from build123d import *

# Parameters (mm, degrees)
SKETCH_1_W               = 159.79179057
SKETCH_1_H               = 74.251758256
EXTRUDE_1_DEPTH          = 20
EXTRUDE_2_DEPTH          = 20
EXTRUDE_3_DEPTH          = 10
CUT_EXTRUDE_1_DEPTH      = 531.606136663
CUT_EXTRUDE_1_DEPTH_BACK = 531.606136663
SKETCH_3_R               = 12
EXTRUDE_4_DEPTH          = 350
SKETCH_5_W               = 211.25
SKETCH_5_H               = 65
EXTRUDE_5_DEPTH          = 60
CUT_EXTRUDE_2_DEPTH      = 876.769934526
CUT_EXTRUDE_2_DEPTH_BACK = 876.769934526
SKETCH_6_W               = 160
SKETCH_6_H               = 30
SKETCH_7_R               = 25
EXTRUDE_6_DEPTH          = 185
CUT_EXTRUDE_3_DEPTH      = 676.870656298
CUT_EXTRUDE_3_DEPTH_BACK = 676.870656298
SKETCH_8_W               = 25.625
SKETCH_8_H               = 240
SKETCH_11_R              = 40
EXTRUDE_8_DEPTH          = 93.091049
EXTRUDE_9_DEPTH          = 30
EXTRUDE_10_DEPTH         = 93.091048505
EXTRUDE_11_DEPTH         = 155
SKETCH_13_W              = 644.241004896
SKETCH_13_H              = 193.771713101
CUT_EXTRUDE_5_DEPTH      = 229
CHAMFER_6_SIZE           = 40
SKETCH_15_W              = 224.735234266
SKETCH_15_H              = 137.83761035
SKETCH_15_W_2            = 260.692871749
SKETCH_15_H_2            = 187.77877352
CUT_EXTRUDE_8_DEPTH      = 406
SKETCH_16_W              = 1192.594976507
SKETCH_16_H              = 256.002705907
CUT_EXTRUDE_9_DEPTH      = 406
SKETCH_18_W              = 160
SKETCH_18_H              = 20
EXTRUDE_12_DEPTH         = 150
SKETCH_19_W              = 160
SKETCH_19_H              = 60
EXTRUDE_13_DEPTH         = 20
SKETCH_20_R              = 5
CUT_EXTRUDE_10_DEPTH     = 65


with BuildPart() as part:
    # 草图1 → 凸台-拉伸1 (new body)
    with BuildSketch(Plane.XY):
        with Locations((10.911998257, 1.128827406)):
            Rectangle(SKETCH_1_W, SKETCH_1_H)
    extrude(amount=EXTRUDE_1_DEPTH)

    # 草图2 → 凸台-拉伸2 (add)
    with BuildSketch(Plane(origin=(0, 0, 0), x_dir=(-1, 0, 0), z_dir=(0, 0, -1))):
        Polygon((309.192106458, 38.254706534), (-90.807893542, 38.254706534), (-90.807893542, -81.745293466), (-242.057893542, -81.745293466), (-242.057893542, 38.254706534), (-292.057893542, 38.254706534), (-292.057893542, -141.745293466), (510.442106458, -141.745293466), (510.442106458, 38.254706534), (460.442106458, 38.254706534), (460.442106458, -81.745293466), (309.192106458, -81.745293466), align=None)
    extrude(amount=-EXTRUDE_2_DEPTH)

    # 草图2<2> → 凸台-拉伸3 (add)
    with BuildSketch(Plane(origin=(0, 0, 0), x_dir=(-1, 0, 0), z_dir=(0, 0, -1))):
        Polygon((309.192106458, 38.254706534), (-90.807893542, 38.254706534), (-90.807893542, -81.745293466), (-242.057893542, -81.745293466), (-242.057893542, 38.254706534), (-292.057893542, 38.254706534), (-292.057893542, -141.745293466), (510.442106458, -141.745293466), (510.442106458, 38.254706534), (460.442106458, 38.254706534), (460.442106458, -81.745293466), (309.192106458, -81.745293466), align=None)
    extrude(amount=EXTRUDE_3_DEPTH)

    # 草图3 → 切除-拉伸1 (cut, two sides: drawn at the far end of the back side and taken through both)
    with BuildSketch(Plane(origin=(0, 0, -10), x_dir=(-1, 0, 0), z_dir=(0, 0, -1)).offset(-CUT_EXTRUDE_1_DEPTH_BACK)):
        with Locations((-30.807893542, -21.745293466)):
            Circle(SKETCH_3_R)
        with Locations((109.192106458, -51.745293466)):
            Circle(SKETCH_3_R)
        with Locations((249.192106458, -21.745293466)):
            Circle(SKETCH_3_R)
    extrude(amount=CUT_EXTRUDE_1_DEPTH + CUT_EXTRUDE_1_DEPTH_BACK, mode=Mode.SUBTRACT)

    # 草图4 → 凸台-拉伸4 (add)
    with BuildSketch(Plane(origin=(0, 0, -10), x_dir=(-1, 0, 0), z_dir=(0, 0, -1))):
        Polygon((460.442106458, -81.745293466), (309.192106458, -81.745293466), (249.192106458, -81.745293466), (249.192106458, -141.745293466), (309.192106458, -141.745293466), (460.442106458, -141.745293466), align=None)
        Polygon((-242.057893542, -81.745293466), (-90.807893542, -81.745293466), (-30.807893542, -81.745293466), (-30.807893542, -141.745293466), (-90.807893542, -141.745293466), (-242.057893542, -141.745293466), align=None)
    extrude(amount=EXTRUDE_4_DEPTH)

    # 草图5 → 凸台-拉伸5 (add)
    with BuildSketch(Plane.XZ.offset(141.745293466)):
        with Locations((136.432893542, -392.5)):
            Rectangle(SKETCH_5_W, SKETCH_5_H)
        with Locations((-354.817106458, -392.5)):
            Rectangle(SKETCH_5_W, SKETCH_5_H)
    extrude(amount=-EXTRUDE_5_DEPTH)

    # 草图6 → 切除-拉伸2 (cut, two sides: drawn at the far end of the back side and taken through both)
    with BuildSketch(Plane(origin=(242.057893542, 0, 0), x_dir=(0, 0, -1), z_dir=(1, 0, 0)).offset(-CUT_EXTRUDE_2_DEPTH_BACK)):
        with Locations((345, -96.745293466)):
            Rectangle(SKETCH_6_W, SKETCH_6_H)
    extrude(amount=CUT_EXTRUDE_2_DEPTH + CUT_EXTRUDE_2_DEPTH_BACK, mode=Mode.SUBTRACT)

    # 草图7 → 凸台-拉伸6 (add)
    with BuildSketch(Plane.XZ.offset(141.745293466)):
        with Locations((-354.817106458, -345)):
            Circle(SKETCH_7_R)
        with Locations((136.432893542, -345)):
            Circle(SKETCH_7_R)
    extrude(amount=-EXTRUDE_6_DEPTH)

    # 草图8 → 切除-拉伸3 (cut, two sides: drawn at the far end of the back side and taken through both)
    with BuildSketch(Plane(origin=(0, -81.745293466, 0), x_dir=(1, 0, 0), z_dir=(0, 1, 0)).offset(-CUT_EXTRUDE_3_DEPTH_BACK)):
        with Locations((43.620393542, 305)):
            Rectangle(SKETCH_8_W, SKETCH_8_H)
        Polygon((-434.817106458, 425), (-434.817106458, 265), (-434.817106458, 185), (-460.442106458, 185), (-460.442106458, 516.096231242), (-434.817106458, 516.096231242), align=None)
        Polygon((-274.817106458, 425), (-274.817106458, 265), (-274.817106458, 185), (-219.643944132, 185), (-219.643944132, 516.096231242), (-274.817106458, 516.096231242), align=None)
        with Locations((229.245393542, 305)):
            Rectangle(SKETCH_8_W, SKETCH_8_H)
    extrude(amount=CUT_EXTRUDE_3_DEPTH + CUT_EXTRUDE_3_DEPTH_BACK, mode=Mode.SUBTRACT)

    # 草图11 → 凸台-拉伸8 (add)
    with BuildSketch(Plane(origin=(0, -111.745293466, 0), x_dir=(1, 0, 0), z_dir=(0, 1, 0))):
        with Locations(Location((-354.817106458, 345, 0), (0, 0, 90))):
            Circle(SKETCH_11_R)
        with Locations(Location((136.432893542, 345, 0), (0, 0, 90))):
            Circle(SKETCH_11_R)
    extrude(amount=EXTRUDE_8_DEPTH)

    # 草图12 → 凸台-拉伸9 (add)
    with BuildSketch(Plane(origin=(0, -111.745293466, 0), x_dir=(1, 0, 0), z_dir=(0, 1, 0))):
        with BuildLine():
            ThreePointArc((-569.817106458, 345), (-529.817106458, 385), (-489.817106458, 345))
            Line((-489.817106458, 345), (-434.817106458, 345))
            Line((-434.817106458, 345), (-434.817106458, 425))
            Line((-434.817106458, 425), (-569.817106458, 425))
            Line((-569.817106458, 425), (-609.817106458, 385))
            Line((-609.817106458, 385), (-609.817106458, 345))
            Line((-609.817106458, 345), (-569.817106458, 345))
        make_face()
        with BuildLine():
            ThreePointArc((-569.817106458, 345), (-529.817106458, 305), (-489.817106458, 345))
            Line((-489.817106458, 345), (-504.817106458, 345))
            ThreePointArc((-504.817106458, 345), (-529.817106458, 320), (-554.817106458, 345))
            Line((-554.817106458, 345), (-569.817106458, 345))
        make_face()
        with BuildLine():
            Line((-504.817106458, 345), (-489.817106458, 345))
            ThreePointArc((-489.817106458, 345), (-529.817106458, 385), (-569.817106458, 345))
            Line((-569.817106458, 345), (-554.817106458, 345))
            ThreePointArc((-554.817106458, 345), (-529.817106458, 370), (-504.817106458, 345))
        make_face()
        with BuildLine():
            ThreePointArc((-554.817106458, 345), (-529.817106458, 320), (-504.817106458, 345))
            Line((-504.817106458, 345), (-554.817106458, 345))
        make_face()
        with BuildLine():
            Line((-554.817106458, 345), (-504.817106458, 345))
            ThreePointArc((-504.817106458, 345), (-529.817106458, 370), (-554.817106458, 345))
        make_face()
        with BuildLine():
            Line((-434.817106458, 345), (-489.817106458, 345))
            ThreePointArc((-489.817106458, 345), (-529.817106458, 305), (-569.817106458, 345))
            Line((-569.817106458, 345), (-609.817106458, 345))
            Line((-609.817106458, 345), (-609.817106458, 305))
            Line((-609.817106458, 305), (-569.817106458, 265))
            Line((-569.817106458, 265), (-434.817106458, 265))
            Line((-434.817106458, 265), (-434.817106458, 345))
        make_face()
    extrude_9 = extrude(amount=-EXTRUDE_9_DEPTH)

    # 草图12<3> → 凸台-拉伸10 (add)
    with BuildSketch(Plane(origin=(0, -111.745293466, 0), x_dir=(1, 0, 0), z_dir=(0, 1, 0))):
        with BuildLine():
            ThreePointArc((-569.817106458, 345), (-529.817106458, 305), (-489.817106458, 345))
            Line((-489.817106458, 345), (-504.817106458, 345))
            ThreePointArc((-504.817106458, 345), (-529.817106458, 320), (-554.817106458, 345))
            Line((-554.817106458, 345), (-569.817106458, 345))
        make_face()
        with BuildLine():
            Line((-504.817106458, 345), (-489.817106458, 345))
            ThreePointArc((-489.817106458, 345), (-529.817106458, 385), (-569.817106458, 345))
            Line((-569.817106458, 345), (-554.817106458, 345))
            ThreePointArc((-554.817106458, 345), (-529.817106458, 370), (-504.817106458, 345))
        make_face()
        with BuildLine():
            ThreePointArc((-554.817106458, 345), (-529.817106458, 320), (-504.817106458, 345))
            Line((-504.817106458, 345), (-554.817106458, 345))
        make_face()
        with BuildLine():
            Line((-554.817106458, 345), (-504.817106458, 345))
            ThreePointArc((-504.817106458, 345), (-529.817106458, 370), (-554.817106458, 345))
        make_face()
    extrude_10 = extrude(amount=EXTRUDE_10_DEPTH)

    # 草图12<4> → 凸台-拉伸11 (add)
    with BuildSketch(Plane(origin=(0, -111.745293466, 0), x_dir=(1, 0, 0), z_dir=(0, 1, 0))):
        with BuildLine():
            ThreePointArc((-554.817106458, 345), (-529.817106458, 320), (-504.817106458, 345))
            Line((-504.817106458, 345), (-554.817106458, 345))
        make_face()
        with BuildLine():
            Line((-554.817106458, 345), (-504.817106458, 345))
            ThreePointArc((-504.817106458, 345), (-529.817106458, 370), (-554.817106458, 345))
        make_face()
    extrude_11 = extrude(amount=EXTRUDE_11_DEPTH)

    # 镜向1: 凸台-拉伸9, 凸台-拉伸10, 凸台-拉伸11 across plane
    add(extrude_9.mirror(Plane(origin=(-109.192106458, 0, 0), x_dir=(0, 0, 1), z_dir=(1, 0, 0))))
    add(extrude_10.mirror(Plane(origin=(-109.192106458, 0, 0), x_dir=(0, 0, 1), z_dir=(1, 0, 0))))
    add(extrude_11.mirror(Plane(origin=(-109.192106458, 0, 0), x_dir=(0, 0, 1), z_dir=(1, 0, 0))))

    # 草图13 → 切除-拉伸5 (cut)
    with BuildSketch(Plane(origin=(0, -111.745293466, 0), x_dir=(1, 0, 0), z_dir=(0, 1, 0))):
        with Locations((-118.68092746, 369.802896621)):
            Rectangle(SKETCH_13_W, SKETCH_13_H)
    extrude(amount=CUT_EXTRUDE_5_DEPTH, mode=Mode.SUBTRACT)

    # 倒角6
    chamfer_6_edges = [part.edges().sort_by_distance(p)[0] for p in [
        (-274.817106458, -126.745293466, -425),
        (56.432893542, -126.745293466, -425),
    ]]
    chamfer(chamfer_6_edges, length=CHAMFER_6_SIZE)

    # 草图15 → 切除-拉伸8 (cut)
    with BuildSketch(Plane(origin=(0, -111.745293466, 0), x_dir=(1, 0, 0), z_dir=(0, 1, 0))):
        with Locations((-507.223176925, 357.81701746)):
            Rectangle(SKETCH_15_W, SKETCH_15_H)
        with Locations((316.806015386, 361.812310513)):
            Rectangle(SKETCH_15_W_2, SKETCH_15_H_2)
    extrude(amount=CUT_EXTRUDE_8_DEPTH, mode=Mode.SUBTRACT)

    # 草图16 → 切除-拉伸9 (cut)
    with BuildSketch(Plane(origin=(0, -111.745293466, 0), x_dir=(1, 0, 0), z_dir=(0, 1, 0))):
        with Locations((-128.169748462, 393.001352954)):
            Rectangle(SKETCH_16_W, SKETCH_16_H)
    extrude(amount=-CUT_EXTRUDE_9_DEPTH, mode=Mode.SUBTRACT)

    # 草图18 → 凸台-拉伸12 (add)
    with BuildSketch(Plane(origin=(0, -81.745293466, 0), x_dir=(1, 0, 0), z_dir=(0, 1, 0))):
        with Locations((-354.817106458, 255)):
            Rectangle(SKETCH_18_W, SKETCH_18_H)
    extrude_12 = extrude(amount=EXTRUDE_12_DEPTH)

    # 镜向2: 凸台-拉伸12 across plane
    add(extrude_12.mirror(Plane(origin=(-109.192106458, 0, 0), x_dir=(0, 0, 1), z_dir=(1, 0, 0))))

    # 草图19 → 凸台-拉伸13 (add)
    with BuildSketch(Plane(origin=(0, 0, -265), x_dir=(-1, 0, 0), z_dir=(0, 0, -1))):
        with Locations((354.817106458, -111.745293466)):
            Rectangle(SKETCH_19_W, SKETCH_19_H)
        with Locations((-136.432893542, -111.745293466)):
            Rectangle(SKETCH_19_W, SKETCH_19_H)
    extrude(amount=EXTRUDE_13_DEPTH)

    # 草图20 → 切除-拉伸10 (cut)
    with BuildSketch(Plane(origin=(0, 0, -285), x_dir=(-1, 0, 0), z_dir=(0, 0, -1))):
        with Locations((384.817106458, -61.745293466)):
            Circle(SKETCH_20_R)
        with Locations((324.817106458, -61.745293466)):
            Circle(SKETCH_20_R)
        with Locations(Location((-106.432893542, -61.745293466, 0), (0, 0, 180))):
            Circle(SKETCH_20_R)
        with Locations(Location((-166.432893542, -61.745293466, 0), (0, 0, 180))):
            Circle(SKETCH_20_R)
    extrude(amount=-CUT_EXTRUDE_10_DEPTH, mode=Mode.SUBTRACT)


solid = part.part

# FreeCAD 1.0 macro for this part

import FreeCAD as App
import Part
import Sketcher
Q = App.Units.Quantity


def edges_at(feature, points):
    """Names of the edges that pass closest to the given points."""
    edges = feature.Shape.Edges
    near = lambda p: min(range(len(edges)), key=lambda i: edges[i].distToShape(Part.Vertex(*p))[0])
    return sorted({f"Edge{near(p) + 1}" for p in points})


def add_polygon(sketch, points):
    """Adds a closed chain of lines whose ends are joined by coincident constraints."""
    first, n = sketch.GeometryCount, len(points)
    for a, b in zip(points, points[1:] + points[:1]):
        sketch.addGeometry(Part.LineSegment(App.Vector(*a, 0), App.Vector(*b, 0)), False)
    for i in range(n):
        sketch.addConstraint(Sketcher.Constraint("Coincident", first + i, 2, first + (i + 1) % n, 1))

doc = App.newDocument("Part")
body = doc.addObject("PartDesign::Body", "Body")

# Sketch on XY plane
sketch1 = body.newObject("Sketcher::SketchObject", "Sketch")
sketch1.AttachmentSupport = (doc.getObject("XY_Plane"), [""])
sketch1.MapMode = "FlatFace"
add_polygon(sketch1, [(-69, 38), (-69, -36), (91, -36), (91, 38)])  # lines 0-3
sketch1.addConstraint([
    Sketcher.Constraint("Vertical", 0),
    Sketcher.Constraint("Horizontal", 1),
    Sketcher.Constraint("Vertical", 2),
    Sketcher.Constraint("Horizontal", 3),
    Sketcher.Constraint("DistanceX", 1, 1, 1, 2, Q("159.791791 mm")),
    Sketcher.Constraint("DistanceY", 0, 2, 0, 1, Q("74.251758 mm")),
    Sketcher.Constraint("DistanceY", 0, 2, -1, 1, Q("35.997052 mm")),
    Sketcher.Constraint("DistanceX", 0, 2, -1, 1, Q("68.983897 mm")),
])
pad1 = body.newObject("PartDesign::Pad", "Pad")
pad1.Profile = sketch1
pad1.Length = 20

# Sketch on XY plane
sketch2 = body.newObject("Sketcher::SketchObject", "Sketch001")
sketch2.AttachmentSupport = (doc.getObject("XY_Plane"), [""])
sketch2.MapMode = "FlatFace"
add_polygon(sketch2, [(-309, 38), (91, 38), (91, -82), (242, -82), (242, 38), (292, 38), (292, -142), (-510, -142), (-510, 38), (-460, 38), (-460, -82), (-309, -82)])  # lines 0-11
sketch2.addConstraint([
    Sketcher.Constraint("Horizontal", 0),
    Sketcher.Constraint("Vertical", 1),
    Sketcher.Constraint("Horizontal", 2),
    Sketcher.Constraint("Vertical", 3),
    Sketcher.Constraint("Horizontal", 4),
    Sketcher.Constraint("Vertical", 5),
    Sketcher.Constraint("Horizontal", 6),
    Sketcher.Constraint("Vertical", 7),
    Sketcher.Constraint("Horizontal", 8),
    Sketcher.Constraint("Vertical", 9),
    Sketcher.Constraint("Horizontal", 10),
    Sketcher.Constraint("Vertical", 11),
    Sketcher.Constraint("Horizontal", 0, 2, 3, 2),
    Sketcher.Constraint("Horizontal", 4, 2, 7, 2),
    Sketcher.Constraint("Horizontal", 2, 2, 9, 2),
    Sketcher.Constraint("Equal", 4, 8),
    Sketcher.Constraint("Equal", 2, 10),
    Sketcher.Constraint("DistanceX", 0, 1, 0, 2, Q("400 mm")),
    Sketcher.Constraint("DistanceX", 4, 1, 4, 2, Q("50 mm")),
    Sketcher.Constraint("DistanceY", 1, 2, 1, 1, Q("120 mm")),
    Sketcher.Constraint("DistanceY", 5, 2, 5, 1, Q("180 mm")),
    Sketcher.Constraint("DistanceX", 6, 2, 6, 1, Q("802.5 mm")),
    Sketcher.Constraint("DistanceX", -1, 1, 0, 2, Q("90.807894 mm")),
    Sketcher.Constraint("DistanceY", -1, 1, 0, 2, Q("38.254707 mm")),
])
pad2 = body.newObject("PartDesign::Pad", "Pad001")
pad2.Profile = sketch2
pad2.Length = 20

# Sketch on XY plane
sketch3 = body.newObject("Sketcher::SketchObject", "Sketch002")
sketch3.AttachmentSupport = (doc.getObject("XY_Plane"), [""])
sketch3.MapMode = "FlatFace"
add_polygon(sketch3, [(-309, 38), (91, 38), (91, -82), (242, -82), (242, 38), (292, 38), (292, -142), (-510, -142), (-510, 38), (-460, 38), (-460, -82), (-309, -82)])  # lines 0-11
sketch3.addConstraint([
    Sketcher.Constraint("Horizontal", 0),
    Sketcher.Constraint("Vertical", 1),
    Sketcher.Constraint("Horizontal", 2),
    Sketcher.Constraint("Vertical", 3),
    Sketcher.Constraint("Horizontal", 4),
    Sketcher.Constraint("Vertical", 5),
    Sketcher.Constraint("Horizontal", 6),
    Sketcher.Constraint("Vertical", 7),
    Sketcher.Constraint("Horizontal", 8),
    Sketcher.Constraint("Vertical", 9),
    Sketcher.Constraint("Horizontal", 10),
    Sketcher.Constraint("Vertical", 11),
    Sketcher.Constraint("Horizontal", 0, 2, 3, 2),
    Sketcher.Constraint("Horizontal", 4, 2, 7, 2),
    Sketcher.Constraint("Horizontal", 2, 2, 9, 2),
    Sketcher.Constraint("Equal", 4, 8),
    Sketcher.Constraint("Equal", 2, 10),
    Sketcher.Constraint("DistanceX", 0, 1, 0, 2, Q("400 mm")),
    Sketcher.Constraint("DistanceX", 4, 1, 4, 2, Q("50 mm")),
    Sketcher.Constraint("DistanceY", 1, 2, 1, 1, Q("120 mm")),
    Sketcher.Constraint("DistanceY", 5, 2, 5, 1, Q("180 mm")),
    Sketcher.Constraint("DistanceX", 6, 2, 6, 1, Q("802.5 mm")),
    Sketcher.Constraint("DistanceX", -1, 1, 0, 2, Q("90.807894 mm")),
    Sketcher.Constraint("DistanceY", -1, 1, 0, 2, Q("38.254707 mm")),
])
pad3 = body.newObject("PartDesign::Pad", "Pad002")
pad3.Profile = sketch3
pad3.Length = 10
pad3.Reversed = True

# Sketch on XY plane
sketch4 = body.newObject("Sketcher::SketchObject", "Sketch003")
sketch4.AttachmentSupport = (doc.getObject("XY_Plane"), [""])
sketch4.MapMode = "FlatFace"
sketch4.AttachmentOffset = App.Placement(App.Vector(0, 0, -10), App.Rotation())
sketch4.addGeometry([
    Part.Circle(App.Vector(31, -22, 0), App.Vector(0, 0, 1), 12),
    Part.Circle(App.Vector(-109, -52, 0), App.Vector(0, 0, 1), 12),
    Part.Circle(App.Vector(-249, -22, 0), App.Vector(0, 0, 1), 12),
], False)
sketch4.addConstraint([
    Sketcher.Constraint("Equal", 0, 1),
    Sketcher.Constraint("Equal", 1, 2),
    Sketcher.Constraint("Horizontal", 0, 3, 2, 3),
    Sketcher.Constraint("Diameter", 0, Q("24 mm")),
    Sketcher.Constraint("DistanceX", 1, 3, 0, 3, Q("140 mm")),
    Sketcher.Constraint("DistanceY", 1, 3, 0, 3, Q("30 mm")),
    Sketcher.Constraint("DistanceX", 2, 3, 1, 3, Q("140 mm")),
    Sketcher.Constraint("DistanceX", -1, 1, 0, 3, Q("30.807894 mm")),
    Sketcher.Constraint("DistanceY", 0, 3, -1, 1, Q("21.745293 mm")),
])
pocket1 = body.newObject("PartDesign::Pocket", "Pocket")
pocket1.Profile = sketch4
pocket1.Type = "ThroughAll"
pocket1.Midplane = True

# Sketch on XY plane
sketch5 = body.newObject("Sketcher::SketchObject", "Sketch004")
sketch5.AttachmentSupport = (doc.getObject("XY_Plane"), [""])
sketch5.MapMode = "FlatFace"
sketch5.AttachmentOffset = App.Placement(App.Vector(0, 0, -10), App.Rotation())
add_polygon(sketch5, [(-460, -82), (-249, -82), (-249, -142), (-460, -142)])  # lines 0-3
add_polygon(sketch5, [(31, -82), (242, -82), (242, -142), (31, -142)])  # lines 4-7
sketch5.addConstraint([
    Sketcher.Constraint("Horizontal", 0),
    Sketcher.Constraint("Vertical", 1),
    Sketcher.Constraint("Horizontal", 2),
    Sketcher.Constraint("Vertical", 3),
    Sketcher.Constraint("Horizontal", 4),
    Sketcher.Constraint("Vertical", 5),
    Sketcher.Constraint("Horizontal", 6),
    Sketcher.Constraint("Vertical", 7),
    Sketcher.Constraint("Horizontal", 3, 2, 4, 2),
    Sketcher.Constraint("Horizontal", 2, 2, 5, 2),
    Sketcher.Constraint("Equal", 2, 4),
    Sketcher.Constraint("DistanceY", 1, 2, 1, 1, Q("60 mm")),
    Sketcher.Constraint("DistanceX", 1, 2, 6, 2, Q("280 mm")),
    Sketcher.Constraint("DistanceX", 0, 1, 0, 2, Q("211.25 mm")),
    Sketcher.Constraint("DistanceX", 0, 2, -1, 1, Q("249.192106 mm")),
    Sketcher.Constraint("DistanceY", 0, 2, -1, 1, Q("81.745293 mm")),
])
pad4 = body.newObject("PartDesign::Pad", "Pad003")
pad4.Profile = sketch5
pad4.Length = 350
pad4.Reversed = True

# Sketch on XZ plane
sketch6 = body.newObject("Sketcher::SketchObject", "Sketch005")
sketch6.AttachmentSupport = (doc.getObject("XZ_Plane"), [""])
sketch6.MapMode = "FlatFace"
sketch6.AttachmentOffset = App.Placement(App.Vector(0, 0, 141.745293), App.Rotation())
add_polygon(sketch6, [(31, -360), (31, -425), (242, -425), (242, -360)])  # lines 0-3
add_polygon(sketch6, [(-460, -360), (-460, -425), (-249, -425), (-249, -360)])  # lines 4-7
sketch6.addConstraint([
    Sketcher.Constraint("Vertical", 0),
    Sketcher.Constraint("Horizontal", 1),
    Sketcher.Constraint("Vertical", 2),
    Sketcher.Constraint("Horizontal", 3),
    Sketcher.Constraint("Vertical", 4),
    Sketcher.Constraint("Horizontal", 5),
    Sketcher.Constraint("Vertical", 6),
    Sketcher.Constraint("Horizontal", 7),
    Sketcher.Constraint("Horizontal", 1, 2, 4, 2),
    Sketcher.Constraint("Horizontal", 3, 2, 6, 2),
    Sketcher.Constraint("Equal", 3, 5),
    Sketcher.Constraint("DistanceY", 0, 2, 0, 1, Q("65 mm")),
    Sketcher.Constraint("DistanceY", 0, 2, -1, 1, Q("425 mm")),
    Sketcher.Constraint("DistanceX", 5, 2, 0, 2, Q("280 mm")),
    Sketcher.Constraint("DistanceX", 1, 1, 1, 2, Q("211.25 mm")),
    Sketcher.Constraint("DistanceX", -1, 1, 0, 2, Q("30.807894 mm")),
])
pad5 = body.newObject("PartDesign::Pad", "Pad004")
pad5.Profile = sketch6
pad5.Length = 60
pad5.Reversed = True

# Sketch on YZ plane
sketch7 = body.newObject("Sketcher::SketchObject", "Sketch006")
sketch7.AttachmentSupport = (doc.getObject("YZ_Plane"), [""])
sketch7.MapMode = "FlatFace"
sketch7.AttachmentOffset = App.Placement(App.Vector(0, 0, 242.057894), App.Rotation())
add_polygon(sketch7, [(-82, -265), (-112, -265), (-112, -425), (-82, -425)])  # lines 0-3
sketch7.addConstraint([
    Sketcher.Constraint("Horizontal", 0),
    Sketcher.Constraint("Vertical", 1),
    Sketcher.Constraint("Horizontal", 2),
    Sketcher.Constraint("Vertical", 3),
    Sketcher.Constraint("DistanceX", 0, 2, 0, 1, Q("30 mm")),
    Sketcher.Constraint("DistanceY", 1, 2, 1, 1, Q("160 mm")),
    Sketcher.Constraint("DistanceY", 0, 2, -1, 1, Q("265 mm")),
    Sketcher.Constraint("DistanceX", 0, 2, -1, 1, Q("111.745293 mm")),
])
pocket2 = body.newObject("PartDesign::Pocket", "Pocket001")
pocket2.Profile = sketch7
pocket2.Type = "ThroughAll"
pocket2.Midplane = True

# Sketch on XZ plane
sketch8 = body.newObject("Sketcher::SketchObject", "Sketch007")
sketch8.AttachmentSupport = (doc.getObject("XZ_Plane"), [""])
sketch8.MapMode = "FlatFace"
sketch8.AttachmentOffset = App.Placement(App.Vector(0, 0, 141.745293), App.Rotation())
sketch8.addGeometry([
    Part.Circle(App.Vector(-355, -345, 0), App.Vector(0, 0, 1), 25),
    Part.Circle(App.Vector(136, -345, 0), App.Vector(0, 0, 1), 25),
], False)
sketch8.addConstraint([
    Sketcher.Constraint("Equal", 0, 1),
    Sketcher.Constraint("Horizontal", 0, 3, 1, 3),
    Sketcher.Constraint("Diameter", 0, Q("50 mm")),
    Sketcher.Constraint("DistanceY", 0, 3, -1, 1, Q("345 mm")),
    Sketcher.Constraint("DistanceX", 0, 3, 1, 3, Q("491.25 mm")),
    Sketcher.Constraint("DistanceX", 0, 3, -1, 1, Q("354.817106 mm")),
])
pad6 = body.newObject("PartDesign::Pad", "Pad005")
pad6.Profile = sketch8
pad6.Length = 185
pad6.Reversed = True

# Sketch on XZ plane
sketch9 = body.newObject("Sketcher::SketchObject", "Sketch008")
sketch9.AttachmentSupport = (doc.getObject("XZ_Plane"), [""])
sketch9.MapMode = "FlatFace"
sketch9.AttachmentOffset = App.Placement(App.Vector(0, 0, 81.745293), App.Rotation())
add_polygon(sketch9, [(31, -425), (31, -185), (56, -185), (56, -425)])  # lines 0-3
add_polygon(sketch9, [(-435, -185), (-435, -516), (-460, -516), (-460, -185)])  # lines 4-7
add_polygon(sketch9, [(-275, -185), (-220, -185), (-220, -516), (-275, -516)])  # lines 8-11
add_polygon(sketch9, [(216, -425), (216, -185), (242, -185), (242, -425)])  # lines 12-15
sketch9.addConstraint([
    Sketcher.Constraint("Vertical", 0),
    Sketcher.Constraint("Horizontal", 1),
    Sketcher.Constraint("Vertical", 2),
    Sketcher.Constraint("Horizontal", 3),
    Sketcher.Constraint("Vertical", 4),
    Sketcher.Constraint("Horizontal", 5),
    Sketcher.Constraint("Vertical", 6),
    Sketcher.Constraint("Horizontal", 7),
    Sketcher.Constraint("Horizontal", 8),
    Sketcher.Constraint("Vertical", 9),
    Sketcher.Constraint("Horizontal", 10),
    Sketcher.Constraint("Vertical", 11),
    Sketcher.Constraint("Vertical", 12),
    Sketcher.Constraint("Horizontal", 13),
    Sketcher.Constraint("Vertical", 14),
    Sketcher.Constraint("Horizontal", 15),
    Sketcher.Constraint("Horizontal", 1, 2, 6, 2),
    Sketcher.Constraint("Horizontal", 7, 2, 8, 2),
    Sketcher.Constraint("Horizontal", 5, 2, 9, 2),
    Sketcher.Constraint("Horizontal", 11, 2, 12, 2),
    Sketcher.Constraint("Horizontal", 3, 2, 14, 2),
    Sketcher.Constraint("Equal", 3, 5),
    Sketcher.Constraint("Equal", 7, 13),
    Sketcher.Constraint("DistanceY", 0, 1, 0, 2, Q("240 mm")),
    Sketcher.Constraint("DistanceY", 0, 2, -1, 1, Q("185 mm")),
    Sketcher.Constraint("DistanceX", 4, 2, 10, 2, Q("160 mm")),
    Sketcher.Constraint("DistanceX", 1, 2, 12, 2, Q("160 mm")),
    Sketcher.Constraint("DistanceX", 1, 1, 1, 2, Q("25.625 mm")),
    Sketcher.Constraint("DistanceX", 4, 2, 2, 2, Q("491.25 mm")),
    Sketcher.Constraint("DistanceY", 4, 2, 4, 1, Q("331.096231 mm")),
    Sketcher.Constraint("DistanceX", 8, 1, 8, 2, Q("55.173162 mm")),
    Sketcher.Constraint("DistanceX", -1, 1, 0, 2, Q("30.807894 mm")),
])
pocket3 = body.newObject("PartDesign::Pocket", "Pocket002")
pocket3.Profile = sketch9
pocket3.Type = "ThroughAll"
pocket3.Midplane = True

# Sketch on XZ plane
sketch10 = body.newObject("Sketcher::SketchObject", "Sketch009")
sketch10.AttachmentSupport = (doc.getObject("XZ_Plane"), [""])
sketch10.MapMode = "FlatFace"
sketch10.AttachmentOffset = App.Placement(App.Vector(0, 0, 111.745293), App.Rotation())
sketch10.addGeometry([
    Part.Circle(App.Vector(-355, -345, 0), App.Vector(0, 0, 1), 40),
    Part.Circle(App.Vector(136, -345, 0), App.Vector(0, 0, 1), 40),
], False)
sketch10.addConstraint([
    Sketcher.Constraint("Equal", 0, 1),
    Sketcher.Constraint("Horizontal", 0, 3, 1, 3),
    Sketcher.Constraint("Diameter", 0, Q("80 mm")),
    Sketcher.Constraint("DistanceY", 0, 3, -1, 1, Q("345 mm")),
    Sketcher.Constraint("DistanceX", 0, 3, 1, 3, Q("491.25 mm")),
    Sketcher.Constraint("DistanceX", 0, 3, -1, 1, Q("354.817106 mm")),
])
pad7 = body.newObject("PartDesign::Pad", "Pad006")
pad7.Profile = sketch10
pad7.Length = 93.091049
pad7.Reversed = True

# Sketch on XZ plane
sketch11 = body.newObject("Sketcher::SketchObject", "Sketch010")
sketch11.AttachmentSupport = (doc.getObject("XZ_Plane"), [""])
sketch11.MapMode = "FlatFace"
sketch11.AttachmentOffset = App.Placement(App.Vector(0, 0, 111.745293), App.Rotation())
add_polygon(sketch11, [(-610, -385), (-610, -305), (-570, -265), (-435, -265), (-435, -425), (-570, -425)])  # lines 0-5
sketch11.addConstraint([
    Sketcher.Constraint("Vertical", 0),
    Sketcher.Constraint("Horizontal", 2),
    Sketcher.Constraint("Vertical", 3),
    Sketcher.Constraint("Horizontal", 4),
    Sketcher.Constraint("Perpendicular", 1, 5),
    Sketcher.Constraint("Vertical", 1, 2, 4, 2),
    Sketcher.Constraint("Equal", 1, 5),
    Sketcher.Constraint("DistanceX", 2, 1, 2, 2, Q("135 mm")),
    Sketcher.Constraint("DistanceY", 0, 1, 0, 2, Q("80 mm")),
    Sketcher.Constraint("DistanceY", 3, 2, 3, 1, Q("160 mm")),
    Sketcher.Constraint("DistanceY", 0, 2, -1, 1, Q("305 mm")),
    Sketcher.Constraint("DistanceX", 0, 2, -1, 1, Q("609.817106 mm")),
])
pad8 = body.newObject("PartDesign::Pad", "Pad007")
pad8.Profile = sketch11
pad8.Length = 30

# Sketch on XZ plane
sketch12 = body.newObject("Sketcher::SketchObject", "Sketch011")
sketch12.AttachmentSupport = (doc.getObject("XZ_Plane"), [""])
sketch12.MapMode = "FlatFace"
sketch12.AttachmentOffset = App.Placement(App.Vector(0, 0, 111.745293), App.Rotation())
sketch12.addGeometry(Part.Circle(App.Vector(-530, -345, 0), App.Vector(0, 0, 1), 40), False)
sketch12.addConstraint([
    Sketcher.Constraint("Diameter", 0, Q("80 mm")),
    Sketcher.Constraint("DistanceY", 0, 3, -1, 1, Q("345 mm")),
    Sketcher.Constraint("DistanceX", 0, 3, -1, 1, Q("529.817106 mm")),
])
pad9 = body.newObject("PartDesign::Pad", "Pad008")
pad9.Profile = sketch12
pad9.Length = 93.091049
pad9.Reversed = True

# Sketch on XZ plane
sketch13 = body.newObject("Sketcher::SketchObject", "Sketch012")
sketch13.AttachmentSupport = (doc.getObject("XZ_Plane"), [""])
sketch13.MapMode = "FlatFace"
sketch13.AttachmentOffset = App.Placement(App.Vector(0, 0, 111.745293), App.Rotation())
sketch13.addGeometry(Part.Circle(App.Vector(-530, -345, 0), App.Vector(0, 0, 1), 25), False)
sketch13.addConstraint([
    Sketcher.Constraint("Diameter", 0, Q("50 mm")),
    Sketcher.Constraint("DistanceY", 0, 3, -1, 1, Q("345 mm")),
    Sketcher.Constraint("DistanceX", 0, 3, -1, 1, Q("529.817106 mm")),
])
pad10 = body.newObject("PartDesign::Pad", "Pad009")
pad10.Profile = sketch13
pad10.Length = 155
pad10.Reversed = True
doc.recompute()

datumplane = body.newObject("PartDesign::Plane", "DatumPlane")
datumplane.AttachmentSupport = (doc.getObject("YZ_Plane"), [""])
datumplane.MapMode = "FlatFace"
datumplane.AttachmentOffset = App.Placement(App.Vector(0, 0, -109.192106), App.Rotation())
mirrored = body.newObject("PartDesign::Mirrored", "Mirrored")
mirrored.Originals = [pad8, pad9, pad10]
mirrored.MirrorPlane = (datumplane, [""])
body.Tip = mirrored

# Sketch on XZ plane
sketch14 = body.newObject("Sketcher::SketchObject", "Sketch013")
sketch14.AttachmentSupport = (doc.getObject("XZ_Plane"), [""])
sketch14.MapMode = "FlatFace"
sketch14.AttachmentOffset = App.Placement(App.Vector(0, 0, 111.745293), App.Rotation())
add_polygon(sketch14, [(-441, -467), (-441, -273), (203, -273), (203, -467)])  # lines 0-3
sketch14.addConstraint([
    Sketcher.Constraint("Vertical", 0),
    Sketcher.Constraint("Horizontal", 1),
    Sketcher.Constraint("Vertical", 2),
    Sketcher.Constraint("Horizontal", 3),
    Sketcher.Constraint("DistanceX", 1, 1, 1, 2, Q("644.241005 mm")),
    Sketcher.Constraint("DistanceY", 0, 1, 0, 2, Q("193.771713 mm")),
    Sketcher.Constraint("DistanceX", 0, 2, -1, 1, Q("440.80143 mm")),
    Sketcher.Constraint("DistanceY", 0, 2, -1, 1, Q("272.91704 mm")),
])
pocket4 = body.newObject("PartDesign::Pocket", "Pocket003")
pocket4.Profile = sketch14
pocket4.Length = 229
doc.recompute()

chamfer = body.newObject("PartDesign::Chamfer", "Chamfer")
chamfer.Base = (pocket4, edges_at(pocket4, [(-274.817, -126.745, -425), (56.433, -126.745, -425)]))
chamfer.Size = 40

# Sketch on XZ plane
sketch15 = body.newObject("Sketcher::SketchObject", "Sketch014")
sketch15.AttachmentSupport = (doc.getObject("XZ_Plane"), [""])
sketch15.MapMode = "FlatFace"
sketch15.AttachmentOffset = App.Placement(App.Vector(0, 0, 111.745293), App.Rotation())
add_polygon(sketch15, [(-620, -427), (-620, -289), (-395, -289), (-395, -427)])  # lines 0-3
add_polygon(sketch15, [(186, -456), (186, -268), (447, -268), (447, -456)])  # lines 4-7
sketch15.addConstraint([
    Sketcher.Constraint("Vertical", 0),
    Sketcher.Constraint("Horizontal", 1),
    Sketcher.Constraint("Vertical", 2),
    Sketcher.Constraint("Horizontal", 3),
    Sketcher.Constraint("Vertical", 4),
    Sketcher.Constraint("Horizontal", 5),
    Sketcher.Constraint("Vertical", 6),
    Sketcher.Constraint("Horizontal", 7),
    Sketcher.Constraint("DistanceX", 5, 1, 5, 2, Q("260.692872 mm")),
    Sketcher.Constraint("DistanceY", 0, 1, 0, 2, Q("137.83761 mm")),
    Sketcher.Constraint("DistanceY", 2, 2, 4, 2, Q("158.812899 mm")),
    Sketcher.Constraint("DistanceX", 1, 1, 1, 2, Q("224.735234 mm")),
    Sketcher.Constraint("DistanceY", 4, 1, 4, 2, Q("187.778774 mm")),
    Sketcher.Constraint("DistanceX", 1, 2, -1, 1, Q("394.85556 mm")),
    Sketcher.Constraint("DistanceX", -1, 1, 4, 2, Q("186.45958 mm")),
    Sketcher.Constraint("DistanceY", 0, 2, -1, 1, Q("288.898212 mm")),
])
pocket5 = body.newObject("PartDesign::Pocket", "Pocket004")
pocket5.Profile = sketch15
pocket5.Length = 406

# Sketch on XZ plane
sketch16 = body.newObject("Sketcher::SketchObject", "Sketch015")
sketch16.AttachmentSupport = (doc.getObject("XZ_Plane"), [""])
sketch16.MapMode = "FlatFace"
sketch16.AttachmentOffset = App.Placement(App.Vector(0, 0, 111.745293), App.Rotation())
add_polygon(sketch16, [(-724, -521), (-724, -265), (468, -265), (468, -521)])  # lines 0-3
sketch16.addConstraint([
    Sketcher.Constraint("Vertical", 0),
    Sketcher.Constraint("Horizontal", 1),
    Sketcher.Constraint("Vertical", 2),
    Sketcher.Constraint("Horizontal", 3),
    Sketcher.Constraint("DistanceY", 0, 2, -1, 1, Q("265 mm")),
    Sketcher.Constraint("DistanceX", 1, 1, 1, 2, Q("1192.594977 mm")),
    Sketcher.Constraint("DistanceY", 0, 1, 0, 2, Q("256.002706 mm")),
    Sketcher.Constraint("DistanceX", -1, 1, 1, 2, Q("468.12774 mm")),
])
pocket6 = body.newObject("PartDesign::Pocket", "Pocket005")
pocket6.Profile = sketch16
pocket6.Length = 406
pocket6.Reversed = True

# Sketch on XZ plane
sketch17 = body.newObject("Sketcher::SketchObject", "Sketch016")
sketch17.AttachmentSupport = (doc.getObject("XZ_Plane"), [""])
sketch17.MapMode = "FlatFace"
sketch17.AttachmentOffset = App.Placement(App.Vector(0, 0, 81.745293), App.Rotation())
add_polygon(sketch17, [(-435, -265), (-435, -245), (-275, -245), (-275, -265)])  # lines 0-3
sketch17.addConstraint([
    Sketcher.Constraint("Vertical", 0),
    Sketcher.Constraint("Horizontal", 1),
    Sketcher.Constraint("Vertical", 2),
    Sketcher.Constraint("Horizontal", 3),
    Sketcher.Constraint("DistanceX", 1, 1, 1, 2, Q("160 mm")),
    Sketcher.Constraint("DistanceY", 0, 1, 0, 2, Q("20 mm")),
    Sketcher.Constraint("DistanceY", 0, 2, -1, 1, Q("245 mm")),
    Sketcher.Constraint("DistanceX", 0, 2, -1, 1, Q("434.817106 mm")),
])
pad11 = body.newObject("PartDesign::Pad", "Pad010")
pad11.Profile = sketch17
pad11.Length = 150
pad11.Reversed = True
doc.recompute()

datumplane2 = body.newObject("PartDesign::Plane", "DatumPlane001")
datumplane2.AttachmentSupport = (doc.getObject("YZ_Plane"), [""])
datumplane2.MapMode = "FlatFace"
datumplane2.AttachmentOffset = App.Placement(App.Vector(0, 0, -109.192106), App.Rotation())
mirrored2 = body.newObject("PartDesign::Mirrored", "Mirrored001")
mirrored2.Originals = [pad11]
mirrored2.MirrorPlane = (datumplane2, [""])
body.Tip = mirrored2

# Sketch on XY plane
sketch18 = body.newObject("Sketcher::SketchObject", "Sketch017")
sketch18.AttachmentSupport = (doc.getObject("XY_Plane"), [""])
sketch18.MapMode = "FlatFace"
sketch18.AttachmentOffset = App.Placement(App.Vector(0, 0, -265), App.Rotation())
add_polygon(sketch18, [(-275, -82), (-275, -142), (-435, -142), (-435, -82)])  # lines 0-3
add_polygon(sketch18, [(216, -82), (216, -142), (56, -142), (56, -82)])  # lines 4-7
sketch18.addConstraint([
    Sketcher.Constraint("Vertical", 0),
    Sketcher.Constraint("Horizontal", 1),
    Sketcher.Constraint("Vertical", 2),
    Sketcher.Constraint("Horizontal", 3),
    Sketcher.Constraint("Vertical", 4),
    Sketcher.Constraint("Horizontal", 5),
    Sketcher.Constraint("Vertical", 6),
    Sketcher.Constraint("Horizontal", 7),
    Sketcher.Constraint("Horizontal", 1, 2, 4, 2),
    Sketcher.Constraint("Horizontal", 3, 2, 6, 2),
    Sketcher.Constraint("Equal", 3, 5),
    Sketcher.Constraint("DistanceX", 1, 2, 1, 1, Q("160 mm")),
    Sketcher.Constraint("DistanceY", 0, 2, 0, 1, Q("60 mm")),
    Sketcher.Constraint("DistanceX", 0, 2, 4, 2, Q("491.25 mm")),
    Sketcher.Constraint("DistanceX", 0, 2, -1, 1, Q("274.817106 mm")),
    Sketcher.Constraint("DistanceY", 0, 2, -1, 1, Q("141.745293 mm")),
])
pad12 = body.newObject("PartDesign::Pad", "Pad011")
pad12.Profile = sketch18
pad12.Length = 20
pad12.Reversed = True

# Sketch on XY plane
sketch19 = body.newObject("Sketcher::SketchObject", "Sketch018")
sketch19.AttachmentSupport = (doc.getObject("XY_Plane"), [""])
sketch19.MapMode = "FlatFace"
sketch19.AttachmentOffset = App.Placement(App.Vector(0, 0, -285), App.Rotation())
sketch19.addGeometry([
    Part.Circle(App.Vector(-385, -62, 0), App.Vector(0, 0, 1), 5),
    Part.Circle(App.Vector(-325, -62, 0), App.Vector(0, 0, 1), 5),
    Part.Circle(App.Vector(106, -62, 0), App.Vector(0, 0, 1), 5),
    Part.Circle(App.Vector(166, -62, 0), App.Vector(0, 0, 1), 5),
], False)
sketch19.addConstraint([
    Sketcher.Constraint("Equal", 0, 1),
    Sketcher.Constraint("Equal", 1, 2),
    Sketcher.Constraint("Equal", 2, 3),
    Sketcher.Constraint("Horizontal", 0, 3, 1, 3),
    Sketcher.Constraint("Horizontal", 1, 3, 2, 3),
    Sketcher.Constraint("Horizontal", 2, 3, 3, 3),
    Sketcher.Constraint("Diameter", 0, Q("10 mm")),
    Sketcher.Constraint("DistanceX", 0, 3, 1, 3, Q("60 mm")),
    Sketcher.Constraint("DistanceX", 2, 3, 3, 3, Q("60 mm")),
    Sketcher.Constraint("DistanceX", 1, 3, 2, 3, Q("431.25 mm")),
    Sketcher.Constraint("DistanceX", 0, 3, -1, 1, Q("384.817106 mm")),
    Sketcher.Constraint("DistanceY", 0, 3, -1, 1, Q("61.745293 mm")),
])
pocket7 = body.newObject("PartDesign::Pocket", "Pocket006")
pocket7.Profile = sketch19
pocket7.Length = 65
pocket7.Reversed = True

doc.recompute()
